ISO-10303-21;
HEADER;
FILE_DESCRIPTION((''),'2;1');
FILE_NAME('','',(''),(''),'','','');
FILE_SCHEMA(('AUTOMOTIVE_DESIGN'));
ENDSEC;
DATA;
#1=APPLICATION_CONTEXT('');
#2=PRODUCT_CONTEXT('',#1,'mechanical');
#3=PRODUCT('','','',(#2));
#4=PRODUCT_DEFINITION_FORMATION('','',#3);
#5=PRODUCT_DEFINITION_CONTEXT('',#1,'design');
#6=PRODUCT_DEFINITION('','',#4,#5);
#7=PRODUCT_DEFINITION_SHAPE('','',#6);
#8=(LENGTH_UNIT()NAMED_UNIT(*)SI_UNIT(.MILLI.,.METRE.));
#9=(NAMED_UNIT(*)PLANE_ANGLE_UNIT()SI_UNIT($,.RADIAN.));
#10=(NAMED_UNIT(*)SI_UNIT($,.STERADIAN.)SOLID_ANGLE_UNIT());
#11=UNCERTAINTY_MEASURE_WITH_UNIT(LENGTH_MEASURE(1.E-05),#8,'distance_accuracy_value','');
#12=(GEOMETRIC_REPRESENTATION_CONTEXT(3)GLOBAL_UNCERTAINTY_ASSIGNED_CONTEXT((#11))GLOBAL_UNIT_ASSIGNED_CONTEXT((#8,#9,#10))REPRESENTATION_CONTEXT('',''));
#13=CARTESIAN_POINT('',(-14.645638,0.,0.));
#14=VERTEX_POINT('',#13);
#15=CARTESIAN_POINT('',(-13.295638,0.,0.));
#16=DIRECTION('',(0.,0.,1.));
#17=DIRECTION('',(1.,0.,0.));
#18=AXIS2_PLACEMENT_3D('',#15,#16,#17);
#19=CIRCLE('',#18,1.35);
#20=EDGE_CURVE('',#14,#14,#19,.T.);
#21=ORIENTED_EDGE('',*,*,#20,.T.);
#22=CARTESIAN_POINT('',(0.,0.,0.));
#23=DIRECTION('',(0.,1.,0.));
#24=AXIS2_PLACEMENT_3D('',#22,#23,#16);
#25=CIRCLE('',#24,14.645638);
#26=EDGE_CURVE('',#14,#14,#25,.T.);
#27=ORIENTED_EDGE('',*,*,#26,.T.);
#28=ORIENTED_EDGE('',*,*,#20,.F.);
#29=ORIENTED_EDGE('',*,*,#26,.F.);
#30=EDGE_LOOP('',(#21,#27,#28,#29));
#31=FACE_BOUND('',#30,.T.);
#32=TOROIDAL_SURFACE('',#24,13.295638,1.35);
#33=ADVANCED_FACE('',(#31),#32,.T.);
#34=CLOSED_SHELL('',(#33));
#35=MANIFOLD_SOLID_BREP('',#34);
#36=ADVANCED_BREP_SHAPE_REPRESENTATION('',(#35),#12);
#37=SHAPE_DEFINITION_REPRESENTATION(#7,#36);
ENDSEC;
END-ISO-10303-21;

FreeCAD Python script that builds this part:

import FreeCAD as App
import Part
import Sketcher

V = App.Vector

doc = App.newDocument("Part")
body = doc.addObject("PartDesign::Body", "Body")

sketch1 = body.newObject("Sketcher::SketchObject", "Sketch")
sketch1.AttachmentSupport = (doc.getObject("XY_Plane"), [""])
sketch1.MapMode = "FlatFace"
sketch1.addGeometry(Part.Circle(V(-13.3, 0, 0), V(0, 0, 1), 1.4), False)
sketch1.addConstraint([
    Sketcher.Constraint("PointOnObject", 0, 3, -1),
    Sketcher.Constraint("Diameter", 0, 2.7),
    Sketcher.Constraint("DistanceX", 0, 3, -1, 1, 13.295638),
])

sketch2 = body.newObject("Sketcher::SketchObject", "Sketch001")
sketch2.AttachmentSupport = (doc.getObject("XZ_Plane"), [""])
sketch2.MapMode = "FlatFace"
sketch2.addGeometry(Part.Circle(V(0, 0, 0), V(0, 0, 1), 13), False)
sketch2.addConstraint([
    Sketcher.Constraint("Coincident", 0, 3, -1, 1),
    Sketcher.Constraint("Diameter", 0, 26.6),
])
doc.recompute()

additivepipe = body.newObject("PartDesign::AdditivePipe", "AdditivePipe")
additivepipe.Profile = sketch1
additivepipe.Spine = (sketch2, ["Edge1"])

doc.recompute()
